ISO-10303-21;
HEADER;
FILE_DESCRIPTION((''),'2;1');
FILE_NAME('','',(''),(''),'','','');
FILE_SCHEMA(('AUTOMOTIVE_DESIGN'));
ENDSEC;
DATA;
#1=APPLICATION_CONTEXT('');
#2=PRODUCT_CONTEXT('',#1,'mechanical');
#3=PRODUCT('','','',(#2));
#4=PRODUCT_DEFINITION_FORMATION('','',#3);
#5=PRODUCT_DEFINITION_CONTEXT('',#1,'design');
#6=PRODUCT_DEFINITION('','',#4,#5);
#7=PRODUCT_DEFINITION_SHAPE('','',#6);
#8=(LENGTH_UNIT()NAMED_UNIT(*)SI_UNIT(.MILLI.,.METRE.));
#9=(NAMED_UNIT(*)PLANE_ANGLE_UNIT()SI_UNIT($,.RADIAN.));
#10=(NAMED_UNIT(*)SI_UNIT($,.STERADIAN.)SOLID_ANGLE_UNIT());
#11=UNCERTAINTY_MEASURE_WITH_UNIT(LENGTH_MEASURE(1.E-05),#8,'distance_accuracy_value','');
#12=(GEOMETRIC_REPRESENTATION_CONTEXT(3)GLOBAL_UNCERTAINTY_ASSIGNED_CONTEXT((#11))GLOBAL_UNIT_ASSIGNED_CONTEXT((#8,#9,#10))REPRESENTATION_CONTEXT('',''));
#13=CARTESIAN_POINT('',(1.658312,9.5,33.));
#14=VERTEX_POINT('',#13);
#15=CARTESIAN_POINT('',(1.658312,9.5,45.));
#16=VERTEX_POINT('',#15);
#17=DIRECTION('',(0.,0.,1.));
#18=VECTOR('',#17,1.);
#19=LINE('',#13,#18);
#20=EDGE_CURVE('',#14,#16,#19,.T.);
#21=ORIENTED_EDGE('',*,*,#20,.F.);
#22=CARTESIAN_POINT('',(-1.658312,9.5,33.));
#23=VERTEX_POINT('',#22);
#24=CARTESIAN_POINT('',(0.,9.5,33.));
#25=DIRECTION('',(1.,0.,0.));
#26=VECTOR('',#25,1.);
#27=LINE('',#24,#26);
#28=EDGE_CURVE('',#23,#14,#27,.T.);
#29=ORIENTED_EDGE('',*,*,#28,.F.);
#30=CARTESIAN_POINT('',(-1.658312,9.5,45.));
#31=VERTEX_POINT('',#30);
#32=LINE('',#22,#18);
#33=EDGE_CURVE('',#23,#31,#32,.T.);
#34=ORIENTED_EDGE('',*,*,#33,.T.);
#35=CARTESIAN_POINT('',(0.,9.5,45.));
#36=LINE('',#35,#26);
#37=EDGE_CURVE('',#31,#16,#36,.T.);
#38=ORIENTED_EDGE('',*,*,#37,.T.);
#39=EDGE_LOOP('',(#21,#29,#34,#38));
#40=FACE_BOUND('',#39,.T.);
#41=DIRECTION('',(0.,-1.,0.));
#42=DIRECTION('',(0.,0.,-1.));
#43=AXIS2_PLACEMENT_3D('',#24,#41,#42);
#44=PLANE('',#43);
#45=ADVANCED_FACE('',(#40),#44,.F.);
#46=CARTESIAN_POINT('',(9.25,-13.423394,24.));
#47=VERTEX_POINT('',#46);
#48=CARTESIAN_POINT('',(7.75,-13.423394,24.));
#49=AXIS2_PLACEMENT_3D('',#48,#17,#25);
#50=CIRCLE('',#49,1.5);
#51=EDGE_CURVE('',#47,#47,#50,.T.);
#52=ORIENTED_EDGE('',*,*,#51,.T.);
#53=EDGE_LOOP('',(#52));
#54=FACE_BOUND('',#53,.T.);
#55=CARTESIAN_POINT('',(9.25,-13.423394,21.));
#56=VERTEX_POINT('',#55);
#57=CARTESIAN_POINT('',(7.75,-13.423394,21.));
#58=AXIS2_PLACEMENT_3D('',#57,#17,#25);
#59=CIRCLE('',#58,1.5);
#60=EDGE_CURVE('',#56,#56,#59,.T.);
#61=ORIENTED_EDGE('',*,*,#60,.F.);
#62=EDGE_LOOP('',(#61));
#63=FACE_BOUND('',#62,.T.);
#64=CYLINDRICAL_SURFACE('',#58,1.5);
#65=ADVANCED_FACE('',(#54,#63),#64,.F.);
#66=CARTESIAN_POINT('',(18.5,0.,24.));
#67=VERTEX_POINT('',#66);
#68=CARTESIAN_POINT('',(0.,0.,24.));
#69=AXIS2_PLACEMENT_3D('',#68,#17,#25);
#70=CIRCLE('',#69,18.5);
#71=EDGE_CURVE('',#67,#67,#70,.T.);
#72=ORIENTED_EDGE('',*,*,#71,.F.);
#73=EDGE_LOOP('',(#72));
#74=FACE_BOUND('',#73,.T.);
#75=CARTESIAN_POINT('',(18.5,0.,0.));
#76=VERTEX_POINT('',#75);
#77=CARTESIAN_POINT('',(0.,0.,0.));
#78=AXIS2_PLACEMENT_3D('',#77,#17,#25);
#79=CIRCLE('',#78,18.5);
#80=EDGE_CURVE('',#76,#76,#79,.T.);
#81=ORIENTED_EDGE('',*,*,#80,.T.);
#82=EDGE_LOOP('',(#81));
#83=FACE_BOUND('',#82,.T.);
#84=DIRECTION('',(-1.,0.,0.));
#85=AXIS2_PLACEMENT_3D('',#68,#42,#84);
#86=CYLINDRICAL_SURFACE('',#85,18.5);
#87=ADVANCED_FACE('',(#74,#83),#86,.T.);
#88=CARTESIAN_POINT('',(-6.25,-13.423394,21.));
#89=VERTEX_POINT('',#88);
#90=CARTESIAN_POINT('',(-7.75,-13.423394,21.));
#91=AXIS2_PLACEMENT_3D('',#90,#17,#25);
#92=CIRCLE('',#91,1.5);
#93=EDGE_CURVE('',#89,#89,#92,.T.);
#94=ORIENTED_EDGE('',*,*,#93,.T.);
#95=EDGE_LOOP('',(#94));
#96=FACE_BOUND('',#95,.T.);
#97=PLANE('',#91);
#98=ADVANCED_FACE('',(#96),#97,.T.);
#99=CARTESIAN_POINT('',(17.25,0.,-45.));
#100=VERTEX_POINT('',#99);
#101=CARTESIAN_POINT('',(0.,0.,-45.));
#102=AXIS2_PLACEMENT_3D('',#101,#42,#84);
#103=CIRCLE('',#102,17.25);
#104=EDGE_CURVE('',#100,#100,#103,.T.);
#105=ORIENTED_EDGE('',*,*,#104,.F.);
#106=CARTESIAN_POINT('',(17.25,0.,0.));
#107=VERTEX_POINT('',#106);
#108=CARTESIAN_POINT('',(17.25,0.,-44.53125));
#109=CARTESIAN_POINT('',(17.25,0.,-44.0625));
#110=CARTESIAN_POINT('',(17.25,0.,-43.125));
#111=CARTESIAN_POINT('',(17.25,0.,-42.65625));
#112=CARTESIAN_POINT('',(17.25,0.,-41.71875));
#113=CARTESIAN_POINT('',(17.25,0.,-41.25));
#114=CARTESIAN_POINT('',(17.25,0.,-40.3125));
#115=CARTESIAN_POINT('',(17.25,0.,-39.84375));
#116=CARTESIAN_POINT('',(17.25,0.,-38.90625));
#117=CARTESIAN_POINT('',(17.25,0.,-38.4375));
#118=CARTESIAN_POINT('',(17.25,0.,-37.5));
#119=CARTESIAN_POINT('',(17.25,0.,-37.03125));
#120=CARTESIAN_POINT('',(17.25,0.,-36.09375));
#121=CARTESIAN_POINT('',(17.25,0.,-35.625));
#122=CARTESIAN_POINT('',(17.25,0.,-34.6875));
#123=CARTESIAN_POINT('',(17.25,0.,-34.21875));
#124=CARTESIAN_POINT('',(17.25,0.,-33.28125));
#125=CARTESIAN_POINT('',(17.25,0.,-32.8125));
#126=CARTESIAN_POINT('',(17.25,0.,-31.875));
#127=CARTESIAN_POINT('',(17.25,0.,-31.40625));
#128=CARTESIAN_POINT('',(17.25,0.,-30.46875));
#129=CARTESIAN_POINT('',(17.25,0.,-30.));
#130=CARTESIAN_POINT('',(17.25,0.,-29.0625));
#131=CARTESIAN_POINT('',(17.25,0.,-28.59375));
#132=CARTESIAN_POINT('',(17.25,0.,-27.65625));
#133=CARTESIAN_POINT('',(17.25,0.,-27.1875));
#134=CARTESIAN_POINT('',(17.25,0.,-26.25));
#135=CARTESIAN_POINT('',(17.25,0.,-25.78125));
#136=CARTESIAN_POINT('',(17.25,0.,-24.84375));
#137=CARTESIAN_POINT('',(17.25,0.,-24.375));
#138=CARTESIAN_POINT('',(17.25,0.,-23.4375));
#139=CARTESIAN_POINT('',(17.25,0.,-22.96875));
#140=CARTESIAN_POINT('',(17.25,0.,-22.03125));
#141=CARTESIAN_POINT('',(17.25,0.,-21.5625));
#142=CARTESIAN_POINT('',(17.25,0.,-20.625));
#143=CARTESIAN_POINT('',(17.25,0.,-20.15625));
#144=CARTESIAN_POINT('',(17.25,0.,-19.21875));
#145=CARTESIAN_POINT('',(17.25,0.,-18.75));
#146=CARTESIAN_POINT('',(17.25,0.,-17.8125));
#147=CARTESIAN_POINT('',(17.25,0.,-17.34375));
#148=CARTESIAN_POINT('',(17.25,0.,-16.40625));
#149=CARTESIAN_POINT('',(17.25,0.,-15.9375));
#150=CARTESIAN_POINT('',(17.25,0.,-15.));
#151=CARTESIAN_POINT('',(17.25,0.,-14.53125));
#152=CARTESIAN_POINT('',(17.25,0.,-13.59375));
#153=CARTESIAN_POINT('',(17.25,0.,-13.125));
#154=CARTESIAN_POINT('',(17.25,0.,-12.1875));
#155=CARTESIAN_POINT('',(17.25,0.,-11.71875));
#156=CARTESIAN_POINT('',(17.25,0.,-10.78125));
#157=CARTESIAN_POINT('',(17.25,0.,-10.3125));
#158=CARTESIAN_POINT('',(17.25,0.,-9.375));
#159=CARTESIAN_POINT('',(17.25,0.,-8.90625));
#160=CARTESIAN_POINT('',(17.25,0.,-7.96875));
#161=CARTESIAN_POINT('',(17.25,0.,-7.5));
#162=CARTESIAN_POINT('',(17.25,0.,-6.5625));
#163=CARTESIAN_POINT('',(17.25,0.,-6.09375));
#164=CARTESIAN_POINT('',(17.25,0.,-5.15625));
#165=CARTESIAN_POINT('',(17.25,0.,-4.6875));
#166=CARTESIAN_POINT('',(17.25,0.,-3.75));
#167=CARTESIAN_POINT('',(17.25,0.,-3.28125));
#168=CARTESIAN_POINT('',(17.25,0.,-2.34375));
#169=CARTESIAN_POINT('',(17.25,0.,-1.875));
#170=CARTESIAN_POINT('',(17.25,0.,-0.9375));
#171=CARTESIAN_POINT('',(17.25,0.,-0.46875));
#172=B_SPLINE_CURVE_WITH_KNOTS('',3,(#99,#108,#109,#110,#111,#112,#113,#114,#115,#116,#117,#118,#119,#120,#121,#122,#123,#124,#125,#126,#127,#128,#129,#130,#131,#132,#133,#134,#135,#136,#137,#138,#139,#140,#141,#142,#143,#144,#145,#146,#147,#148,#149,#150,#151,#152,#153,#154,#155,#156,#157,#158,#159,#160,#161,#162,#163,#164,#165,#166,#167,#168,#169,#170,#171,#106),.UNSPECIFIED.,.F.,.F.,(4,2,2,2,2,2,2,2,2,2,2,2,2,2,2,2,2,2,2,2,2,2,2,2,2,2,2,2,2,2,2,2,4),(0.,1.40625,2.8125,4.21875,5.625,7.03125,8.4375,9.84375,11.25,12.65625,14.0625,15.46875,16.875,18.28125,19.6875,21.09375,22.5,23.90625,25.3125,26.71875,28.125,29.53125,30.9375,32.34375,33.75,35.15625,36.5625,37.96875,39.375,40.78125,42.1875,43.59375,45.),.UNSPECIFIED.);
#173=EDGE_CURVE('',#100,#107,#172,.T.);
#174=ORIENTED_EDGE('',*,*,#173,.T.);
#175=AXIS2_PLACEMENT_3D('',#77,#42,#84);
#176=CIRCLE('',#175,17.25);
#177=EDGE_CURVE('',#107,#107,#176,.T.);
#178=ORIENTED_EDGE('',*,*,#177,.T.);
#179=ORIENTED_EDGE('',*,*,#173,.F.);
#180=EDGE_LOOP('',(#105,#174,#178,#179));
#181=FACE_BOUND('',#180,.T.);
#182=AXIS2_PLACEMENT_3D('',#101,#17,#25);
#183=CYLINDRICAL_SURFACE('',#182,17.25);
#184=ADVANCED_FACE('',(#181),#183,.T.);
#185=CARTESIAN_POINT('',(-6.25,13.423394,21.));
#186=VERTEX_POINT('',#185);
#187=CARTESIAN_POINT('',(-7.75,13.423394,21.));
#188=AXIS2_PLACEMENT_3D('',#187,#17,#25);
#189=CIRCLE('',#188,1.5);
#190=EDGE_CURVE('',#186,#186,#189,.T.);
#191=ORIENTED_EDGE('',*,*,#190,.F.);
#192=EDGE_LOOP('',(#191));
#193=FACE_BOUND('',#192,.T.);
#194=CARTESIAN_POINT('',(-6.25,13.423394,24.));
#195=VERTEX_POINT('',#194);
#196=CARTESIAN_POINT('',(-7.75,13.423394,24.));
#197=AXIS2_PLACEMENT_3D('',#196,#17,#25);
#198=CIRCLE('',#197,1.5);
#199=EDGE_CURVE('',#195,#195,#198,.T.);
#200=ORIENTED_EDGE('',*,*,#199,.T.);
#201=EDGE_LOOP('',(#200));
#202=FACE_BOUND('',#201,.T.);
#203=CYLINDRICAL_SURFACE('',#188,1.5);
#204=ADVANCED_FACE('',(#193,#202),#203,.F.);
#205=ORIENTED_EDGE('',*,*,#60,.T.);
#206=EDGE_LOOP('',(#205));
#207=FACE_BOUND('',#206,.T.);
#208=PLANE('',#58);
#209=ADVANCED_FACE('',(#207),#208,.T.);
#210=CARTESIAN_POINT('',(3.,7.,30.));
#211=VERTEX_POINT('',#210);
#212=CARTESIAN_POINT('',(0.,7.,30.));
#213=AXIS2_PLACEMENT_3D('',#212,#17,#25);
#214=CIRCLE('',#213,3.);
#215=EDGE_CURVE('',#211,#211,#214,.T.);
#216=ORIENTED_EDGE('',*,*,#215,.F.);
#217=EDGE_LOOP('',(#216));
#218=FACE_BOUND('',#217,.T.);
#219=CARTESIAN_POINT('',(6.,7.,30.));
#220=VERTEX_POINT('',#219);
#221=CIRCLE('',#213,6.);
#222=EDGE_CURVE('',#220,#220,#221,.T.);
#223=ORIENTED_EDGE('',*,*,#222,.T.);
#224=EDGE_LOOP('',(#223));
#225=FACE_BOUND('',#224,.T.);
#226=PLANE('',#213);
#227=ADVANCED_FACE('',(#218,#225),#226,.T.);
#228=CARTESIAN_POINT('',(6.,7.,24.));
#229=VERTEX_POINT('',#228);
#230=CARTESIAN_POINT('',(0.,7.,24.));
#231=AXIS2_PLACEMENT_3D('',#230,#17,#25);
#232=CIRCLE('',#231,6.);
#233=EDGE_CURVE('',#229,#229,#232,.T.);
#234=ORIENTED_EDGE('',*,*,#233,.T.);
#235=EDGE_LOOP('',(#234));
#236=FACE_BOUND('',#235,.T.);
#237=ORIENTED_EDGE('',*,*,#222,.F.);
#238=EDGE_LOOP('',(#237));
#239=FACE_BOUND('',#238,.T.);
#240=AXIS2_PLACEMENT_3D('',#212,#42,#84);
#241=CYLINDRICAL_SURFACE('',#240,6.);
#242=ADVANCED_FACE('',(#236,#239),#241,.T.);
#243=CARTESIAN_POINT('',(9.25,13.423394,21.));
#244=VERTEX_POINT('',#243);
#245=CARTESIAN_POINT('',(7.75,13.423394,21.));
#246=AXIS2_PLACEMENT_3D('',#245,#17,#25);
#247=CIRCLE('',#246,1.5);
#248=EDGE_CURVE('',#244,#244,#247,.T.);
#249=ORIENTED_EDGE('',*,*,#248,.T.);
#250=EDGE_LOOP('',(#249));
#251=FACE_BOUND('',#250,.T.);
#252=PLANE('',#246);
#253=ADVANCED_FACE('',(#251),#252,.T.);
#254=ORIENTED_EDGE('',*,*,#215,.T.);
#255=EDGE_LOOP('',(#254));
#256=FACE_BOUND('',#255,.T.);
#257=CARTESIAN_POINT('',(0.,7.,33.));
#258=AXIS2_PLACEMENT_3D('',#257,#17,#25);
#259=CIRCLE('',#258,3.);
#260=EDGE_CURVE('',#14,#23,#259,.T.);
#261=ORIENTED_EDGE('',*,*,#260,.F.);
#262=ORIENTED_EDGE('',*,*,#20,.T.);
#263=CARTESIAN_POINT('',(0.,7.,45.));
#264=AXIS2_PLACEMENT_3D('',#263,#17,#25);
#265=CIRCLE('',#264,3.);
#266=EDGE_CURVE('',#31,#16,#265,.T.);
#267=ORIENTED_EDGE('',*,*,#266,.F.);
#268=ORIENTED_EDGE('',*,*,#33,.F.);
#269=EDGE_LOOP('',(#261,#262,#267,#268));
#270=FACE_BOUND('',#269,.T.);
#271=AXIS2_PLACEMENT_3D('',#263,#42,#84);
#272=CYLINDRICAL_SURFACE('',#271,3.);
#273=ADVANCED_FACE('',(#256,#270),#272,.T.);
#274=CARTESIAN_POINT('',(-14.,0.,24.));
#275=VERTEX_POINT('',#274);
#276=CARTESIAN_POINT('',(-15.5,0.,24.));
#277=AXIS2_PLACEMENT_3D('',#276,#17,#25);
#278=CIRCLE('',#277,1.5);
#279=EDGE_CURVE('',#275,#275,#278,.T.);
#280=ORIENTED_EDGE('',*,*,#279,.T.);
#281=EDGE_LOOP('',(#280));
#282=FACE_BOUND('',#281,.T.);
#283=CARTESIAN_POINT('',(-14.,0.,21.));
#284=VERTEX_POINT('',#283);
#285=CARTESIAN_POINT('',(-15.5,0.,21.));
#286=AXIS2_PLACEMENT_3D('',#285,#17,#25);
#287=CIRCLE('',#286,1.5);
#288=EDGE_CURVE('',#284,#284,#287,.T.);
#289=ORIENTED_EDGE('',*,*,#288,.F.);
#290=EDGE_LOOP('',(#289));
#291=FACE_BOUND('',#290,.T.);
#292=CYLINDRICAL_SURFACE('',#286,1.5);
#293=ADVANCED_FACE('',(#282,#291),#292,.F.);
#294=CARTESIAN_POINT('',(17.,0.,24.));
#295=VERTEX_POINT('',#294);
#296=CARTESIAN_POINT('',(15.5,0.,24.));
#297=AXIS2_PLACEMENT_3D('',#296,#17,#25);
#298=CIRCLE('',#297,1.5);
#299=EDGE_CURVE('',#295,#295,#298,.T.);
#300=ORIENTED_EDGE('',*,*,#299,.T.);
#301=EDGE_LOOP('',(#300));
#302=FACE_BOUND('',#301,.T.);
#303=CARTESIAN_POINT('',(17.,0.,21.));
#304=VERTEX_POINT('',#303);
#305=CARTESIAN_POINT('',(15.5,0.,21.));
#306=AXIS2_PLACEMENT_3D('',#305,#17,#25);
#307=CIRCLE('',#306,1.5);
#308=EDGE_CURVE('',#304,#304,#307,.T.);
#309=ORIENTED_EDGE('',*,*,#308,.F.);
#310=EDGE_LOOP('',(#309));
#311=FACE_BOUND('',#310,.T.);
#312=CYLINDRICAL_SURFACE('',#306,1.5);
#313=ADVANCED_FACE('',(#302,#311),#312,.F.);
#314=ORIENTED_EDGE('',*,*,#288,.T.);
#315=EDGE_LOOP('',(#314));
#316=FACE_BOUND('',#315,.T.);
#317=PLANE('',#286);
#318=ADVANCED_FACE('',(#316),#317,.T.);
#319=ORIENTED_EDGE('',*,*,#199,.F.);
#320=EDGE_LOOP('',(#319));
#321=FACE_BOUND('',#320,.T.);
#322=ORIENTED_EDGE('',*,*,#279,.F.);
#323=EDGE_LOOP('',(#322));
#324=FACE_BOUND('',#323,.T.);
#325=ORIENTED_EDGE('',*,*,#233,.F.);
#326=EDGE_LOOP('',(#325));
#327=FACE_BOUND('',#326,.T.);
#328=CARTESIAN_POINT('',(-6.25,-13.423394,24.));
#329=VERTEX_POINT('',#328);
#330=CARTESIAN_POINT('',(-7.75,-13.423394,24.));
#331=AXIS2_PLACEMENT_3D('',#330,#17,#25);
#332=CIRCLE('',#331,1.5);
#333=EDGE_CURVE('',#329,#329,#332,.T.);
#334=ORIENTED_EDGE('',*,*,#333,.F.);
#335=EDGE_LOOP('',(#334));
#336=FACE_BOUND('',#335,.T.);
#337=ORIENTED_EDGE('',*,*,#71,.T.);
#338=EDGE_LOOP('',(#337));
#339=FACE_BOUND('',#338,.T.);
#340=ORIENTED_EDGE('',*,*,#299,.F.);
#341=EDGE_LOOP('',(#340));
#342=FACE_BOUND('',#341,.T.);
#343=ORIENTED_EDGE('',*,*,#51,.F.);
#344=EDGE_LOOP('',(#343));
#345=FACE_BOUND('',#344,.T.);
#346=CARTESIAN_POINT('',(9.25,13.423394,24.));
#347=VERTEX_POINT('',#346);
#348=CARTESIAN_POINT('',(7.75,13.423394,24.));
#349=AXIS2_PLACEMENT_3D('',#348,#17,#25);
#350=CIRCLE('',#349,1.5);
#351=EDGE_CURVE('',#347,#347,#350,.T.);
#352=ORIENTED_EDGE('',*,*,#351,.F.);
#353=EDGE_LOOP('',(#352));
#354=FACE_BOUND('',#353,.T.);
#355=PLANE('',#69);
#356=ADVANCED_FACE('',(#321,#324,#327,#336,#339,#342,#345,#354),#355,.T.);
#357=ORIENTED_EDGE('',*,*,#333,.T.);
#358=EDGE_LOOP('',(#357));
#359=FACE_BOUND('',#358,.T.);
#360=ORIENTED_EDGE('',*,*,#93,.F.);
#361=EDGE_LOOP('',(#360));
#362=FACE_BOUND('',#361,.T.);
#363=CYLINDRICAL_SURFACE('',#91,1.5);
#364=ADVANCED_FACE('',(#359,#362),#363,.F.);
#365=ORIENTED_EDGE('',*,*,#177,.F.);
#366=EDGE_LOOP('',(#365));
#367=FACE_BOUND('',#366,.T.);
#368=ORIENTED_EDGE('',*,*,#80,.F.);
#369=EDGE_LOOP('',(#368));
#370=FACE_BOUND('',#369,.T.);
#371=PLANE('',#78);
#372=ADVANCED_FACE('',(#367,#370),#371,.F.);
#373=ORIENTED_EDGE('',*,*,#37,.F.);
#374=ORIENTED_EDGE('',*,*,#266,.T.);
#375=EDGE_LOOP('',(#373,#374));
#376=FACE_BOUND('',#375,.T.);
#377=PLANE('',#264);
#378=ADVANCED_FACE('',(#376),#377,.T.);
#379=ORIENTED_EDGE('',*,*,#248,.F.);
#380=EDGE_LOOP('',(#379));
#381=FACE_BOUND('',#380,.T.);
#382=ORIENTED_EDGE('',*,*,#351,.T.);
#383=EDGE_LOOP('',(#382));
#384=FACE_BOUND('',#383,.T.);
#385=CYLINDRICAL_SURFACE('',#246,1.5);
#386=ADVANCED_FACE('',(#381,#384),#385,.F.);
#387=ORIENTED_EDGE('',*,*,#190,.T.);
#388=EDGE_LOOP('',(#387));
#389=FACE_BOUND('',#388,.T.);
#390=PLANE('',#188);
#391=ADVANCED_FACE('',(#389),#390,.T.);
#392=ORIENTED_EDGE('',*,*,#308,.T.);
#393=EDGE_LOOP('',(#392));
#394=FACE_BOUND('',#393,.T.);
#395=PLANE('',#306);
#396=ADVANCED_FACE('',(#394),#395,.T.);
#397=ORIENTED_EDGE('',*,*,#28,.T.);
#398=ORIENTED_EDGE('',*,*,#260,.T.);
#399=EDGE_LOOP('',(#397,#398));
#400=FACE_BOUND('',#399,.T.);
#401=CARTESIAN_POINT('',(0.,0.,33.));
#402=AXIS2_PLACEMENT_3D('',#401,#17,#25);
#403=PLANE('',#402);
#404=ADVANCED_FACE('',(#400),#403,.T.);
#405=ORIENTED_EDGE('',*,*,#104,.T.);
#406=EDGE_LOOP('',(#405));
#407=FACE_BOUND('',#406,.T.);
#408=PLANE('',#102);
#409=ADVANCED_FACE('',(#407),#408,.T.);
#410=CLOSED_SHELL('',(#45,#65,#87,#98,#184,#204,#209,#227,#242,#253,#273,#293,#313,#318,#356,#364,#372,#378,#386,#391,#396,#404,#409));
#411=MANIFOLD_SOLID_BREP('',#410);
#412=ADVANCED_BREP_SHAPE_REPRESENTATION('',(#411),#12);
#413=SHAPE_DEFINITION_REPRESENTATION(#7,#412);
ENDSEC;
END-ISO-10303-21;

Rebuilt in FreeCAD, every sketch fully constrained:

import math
import FreeCAD as App
import Part
import Sketcher

V = App.Vector
Q = App.Units.Quantity

doc = App.newDocument("Part")
body = doc.addObject("PartDesign::Body", "Body")

# Sketch on XY plane
sketch1 = body.newObject("Sketcher::SketchObject", "Sketch")
sketch1.AttachmentSupport = (doc.getObject("XY_Plane"), [""])
sketch1.MapMode = "FlatFace"
sketch1.addGeometry(Part.Circle(V(0, 0, 0), V(0, 0, 1), 18), False)
sketch1.addConstraint([
    Sketcher.Constraint("Coincident", 0, 3, -1, 1),
    Sketcher.Constraint("Diameter", 0, Q("37 mm")),
])
pad1 = body.newObject("PartDesign::Pad", "Pad")
pad1.Profile = sketch1
pad1.Length = 24

# Sketch on XY plane
sketch2 = body.newObject("Sketcher::SketchObject", "Sketch001")
sketch2.AttachmentSupport = (doc.getObject("XY_Plane"), [""])
sketch2.MapMode = "FlatFace"
sketch2.addGeometry(Part.Circle(V(0, 0, 0), V(0, 0, 1), 17), False)
sketch2.addConstraint([
    Sketcher.Constraint("Coincident", 0, 3, -1, 1),
    Sketcher.Constraint("Diameter", 0, Q("34.5 mm")),
])
pad2 = body.newObject("PartDesign::Pad", "Pad001")
pad2.Profile = sketch2
pad2.Length = 45
pad2.Reversed = True

# Sketch on XY plane
sketch3 = body.newObject("Sketcher::SketchObject", "Sketch002")
sketch3.AttachmentSupport = (doc.getObject("XY_Plane"), [""])
sketch3.MapMode = "FlatFace"
sketch3.AttachmentOffset = App.Placement(V(0, 0, 24), App.Rotation())
sketch3.addGeometry(Part.Circle(V(0, 7, 0), V(0, 0, 1), 6), False)
sketch3.addConstraint([
    Sketcher.Constraint("PointOnObject", 0, 3, -2),
    Sketcher.Constraint("Diameter", 0, Q("12 mm")),
    Sketcher.Constraint("DistanceY", -1, 1, 0, 3, Q("7 mm")),
])
pad3 = body.newObject("PartDesign::Pad", "Pad002")
pad3.Profile = sketch3
pad3.Length = 6

# Sketch on XY plane
sketch4 = body.newObject("Sketcher::SketchObject", "Sketch003")
sketch4.AttachmentSupport = (doc.getObject("XY_Plane"), [""])
sketch4.MapMode = "FlatFace"
sketch4.AttachmentOffset = App.Placement(V(0, 0, 30), App.Rotation())
sketch4.addGeometry(Part.Circle(V(0, 7, 0), V(0, 0, 1), 3), False)
sketch4.addConstraint([
    Sketcher.Constraint("PointOnObject", 0, 3, -2),
    Sketcher.Constraint("Diameter", 0, Q("6 mm")),
    Sketcher.Constraint("DistanceY", -1, 1, 0, 3, Q("7 mm")),
])
pad4 = body.newObject("PartDesign::Pad", "Pad003")
pad4.Profile = sketch4
pad4.Length = 15

# Sketch on XY plane
sketch5 = body.newObject("Sketcher::SketchObject", "Sketch004")
sketch5.AttachmentSupport = (doc.getObject("XY_Plane"), [""])
sketch5.MapMode = "FlatFace"
sketch5.AttachmentOffset = App.Placement(V(0, 0, 33), App.Rotation())
sketch5.addGeometry([
    Part.ArcOfCircle(Part.Circle(V(0, 7, 0), V(0, 0, 1), 3), math.radians(56), math.radians(124)),
    Part.LineSegment(V(-1.7, 9.5, 0), V(1.7, 9.5, 0)),
], False)
sketch5.addConstraint([
    Sketcher.Constraint("Coincident", 0, 1, 1, 2),
    Sketcher.Constraint("Coincident", 1, 1, 0, 2),
    Sketcher.Constraint("Horizontal", 1),
    Sketcher.Constraint("PointOnObject", 0, 3, -2),
    Sketcher.Constraint("Radius", 0, Q("3 mm")),
    Sketcher.Constraint("DistanceY", -1, 1, 0, 3, Q("7 mm")),
    Sketcher.Constraint("DistanceY", -1, 1, 0, 1, Q("9.5 mm")),
])
pocket1 = body.newObject("PartDesign::Pocket", "Pocket")
pocket1.Profile = sketch5
pocket1.Length = 12
pocket1.Reversed = True

# Sketch on XY plane
sketch6 = body.newObject("Sketcher::SketchObject", "Sketch005")
sketch6.AttachmentSupport = (doc.getObject("XY_Plane"), [""])
sketch6.MapMode = "FlatFace"
sketch6.AttachmentOffset = App.Placement(V(0, 0, 24), App.Rotation())
sketch6.addGeometry([
    Part.Circle(V(7.8, 13.4, 0), V(0, 0, 1), 1.5),  # 0
    Part.Circle(V(15.5, 0, 0), V(0, 0, 1), 1.5),  # 1
    Part.Circle(V(7.8, -13.4, 0), V(0, 0, 1), 1.5),  # 2
    Part.Circle(V(-7.8, -13.4, 0), V(0, 0, 1), 1.5),  # 3
    Part.Circle(V(-15.5, 0, 0), V(0, 0, 1), 1.5),  # 4
    Part.Circle(V(-7.8, 13.4, 0), V(0, 0, 1), 1.5),  # 5
], False)
sketch6.addConstraint([
    Sketcher.Constraint("Equal", 0, 1),
    Sketcher.Constraint("Equal", 1, 2),
    Sketcher.Constraint("Equal", 2, 3),
    Sketcher.Constraint("Equal", 3, 4),
    Sketcher.Constraint("Equal", 4, 5),
    Sketcher.Constraint("Symmetric", 0, 3, 3, 3, -1, 1),
    Sketcher.Constraint("Symmetric", 1, 3, 4, 3, -1, 1),
    Sketcher.Constraint("Symmetric", 2, 3, 5, 3, -1, 1),
    Sketcher.Constraint("Symmetric", 2, 3, 3, 3, -2),
    Sketcher.Constraint("PointOnObject", 1, 3, -1),
    Sketcher.Constraint("Diameter", 0, Q("3 mm")),
    Sketcher.Constraint("DistanceX", 4, 3, 1, 3, Q("31 mm")),
    Sketcher.Constraint("DistanceX", 3, 3, 2, 3, Q("15.5 mm")),
    Sketcher.Constraint("DistanceY", -1, 1, 0, 3, Q("13.423394 mm")),
])
pocket2 = body.newObject("PartDesign::Pocket", "Pocket001")
pocket2.Profile = sketch6
pocket2.Length = 3

doc.recompute()
